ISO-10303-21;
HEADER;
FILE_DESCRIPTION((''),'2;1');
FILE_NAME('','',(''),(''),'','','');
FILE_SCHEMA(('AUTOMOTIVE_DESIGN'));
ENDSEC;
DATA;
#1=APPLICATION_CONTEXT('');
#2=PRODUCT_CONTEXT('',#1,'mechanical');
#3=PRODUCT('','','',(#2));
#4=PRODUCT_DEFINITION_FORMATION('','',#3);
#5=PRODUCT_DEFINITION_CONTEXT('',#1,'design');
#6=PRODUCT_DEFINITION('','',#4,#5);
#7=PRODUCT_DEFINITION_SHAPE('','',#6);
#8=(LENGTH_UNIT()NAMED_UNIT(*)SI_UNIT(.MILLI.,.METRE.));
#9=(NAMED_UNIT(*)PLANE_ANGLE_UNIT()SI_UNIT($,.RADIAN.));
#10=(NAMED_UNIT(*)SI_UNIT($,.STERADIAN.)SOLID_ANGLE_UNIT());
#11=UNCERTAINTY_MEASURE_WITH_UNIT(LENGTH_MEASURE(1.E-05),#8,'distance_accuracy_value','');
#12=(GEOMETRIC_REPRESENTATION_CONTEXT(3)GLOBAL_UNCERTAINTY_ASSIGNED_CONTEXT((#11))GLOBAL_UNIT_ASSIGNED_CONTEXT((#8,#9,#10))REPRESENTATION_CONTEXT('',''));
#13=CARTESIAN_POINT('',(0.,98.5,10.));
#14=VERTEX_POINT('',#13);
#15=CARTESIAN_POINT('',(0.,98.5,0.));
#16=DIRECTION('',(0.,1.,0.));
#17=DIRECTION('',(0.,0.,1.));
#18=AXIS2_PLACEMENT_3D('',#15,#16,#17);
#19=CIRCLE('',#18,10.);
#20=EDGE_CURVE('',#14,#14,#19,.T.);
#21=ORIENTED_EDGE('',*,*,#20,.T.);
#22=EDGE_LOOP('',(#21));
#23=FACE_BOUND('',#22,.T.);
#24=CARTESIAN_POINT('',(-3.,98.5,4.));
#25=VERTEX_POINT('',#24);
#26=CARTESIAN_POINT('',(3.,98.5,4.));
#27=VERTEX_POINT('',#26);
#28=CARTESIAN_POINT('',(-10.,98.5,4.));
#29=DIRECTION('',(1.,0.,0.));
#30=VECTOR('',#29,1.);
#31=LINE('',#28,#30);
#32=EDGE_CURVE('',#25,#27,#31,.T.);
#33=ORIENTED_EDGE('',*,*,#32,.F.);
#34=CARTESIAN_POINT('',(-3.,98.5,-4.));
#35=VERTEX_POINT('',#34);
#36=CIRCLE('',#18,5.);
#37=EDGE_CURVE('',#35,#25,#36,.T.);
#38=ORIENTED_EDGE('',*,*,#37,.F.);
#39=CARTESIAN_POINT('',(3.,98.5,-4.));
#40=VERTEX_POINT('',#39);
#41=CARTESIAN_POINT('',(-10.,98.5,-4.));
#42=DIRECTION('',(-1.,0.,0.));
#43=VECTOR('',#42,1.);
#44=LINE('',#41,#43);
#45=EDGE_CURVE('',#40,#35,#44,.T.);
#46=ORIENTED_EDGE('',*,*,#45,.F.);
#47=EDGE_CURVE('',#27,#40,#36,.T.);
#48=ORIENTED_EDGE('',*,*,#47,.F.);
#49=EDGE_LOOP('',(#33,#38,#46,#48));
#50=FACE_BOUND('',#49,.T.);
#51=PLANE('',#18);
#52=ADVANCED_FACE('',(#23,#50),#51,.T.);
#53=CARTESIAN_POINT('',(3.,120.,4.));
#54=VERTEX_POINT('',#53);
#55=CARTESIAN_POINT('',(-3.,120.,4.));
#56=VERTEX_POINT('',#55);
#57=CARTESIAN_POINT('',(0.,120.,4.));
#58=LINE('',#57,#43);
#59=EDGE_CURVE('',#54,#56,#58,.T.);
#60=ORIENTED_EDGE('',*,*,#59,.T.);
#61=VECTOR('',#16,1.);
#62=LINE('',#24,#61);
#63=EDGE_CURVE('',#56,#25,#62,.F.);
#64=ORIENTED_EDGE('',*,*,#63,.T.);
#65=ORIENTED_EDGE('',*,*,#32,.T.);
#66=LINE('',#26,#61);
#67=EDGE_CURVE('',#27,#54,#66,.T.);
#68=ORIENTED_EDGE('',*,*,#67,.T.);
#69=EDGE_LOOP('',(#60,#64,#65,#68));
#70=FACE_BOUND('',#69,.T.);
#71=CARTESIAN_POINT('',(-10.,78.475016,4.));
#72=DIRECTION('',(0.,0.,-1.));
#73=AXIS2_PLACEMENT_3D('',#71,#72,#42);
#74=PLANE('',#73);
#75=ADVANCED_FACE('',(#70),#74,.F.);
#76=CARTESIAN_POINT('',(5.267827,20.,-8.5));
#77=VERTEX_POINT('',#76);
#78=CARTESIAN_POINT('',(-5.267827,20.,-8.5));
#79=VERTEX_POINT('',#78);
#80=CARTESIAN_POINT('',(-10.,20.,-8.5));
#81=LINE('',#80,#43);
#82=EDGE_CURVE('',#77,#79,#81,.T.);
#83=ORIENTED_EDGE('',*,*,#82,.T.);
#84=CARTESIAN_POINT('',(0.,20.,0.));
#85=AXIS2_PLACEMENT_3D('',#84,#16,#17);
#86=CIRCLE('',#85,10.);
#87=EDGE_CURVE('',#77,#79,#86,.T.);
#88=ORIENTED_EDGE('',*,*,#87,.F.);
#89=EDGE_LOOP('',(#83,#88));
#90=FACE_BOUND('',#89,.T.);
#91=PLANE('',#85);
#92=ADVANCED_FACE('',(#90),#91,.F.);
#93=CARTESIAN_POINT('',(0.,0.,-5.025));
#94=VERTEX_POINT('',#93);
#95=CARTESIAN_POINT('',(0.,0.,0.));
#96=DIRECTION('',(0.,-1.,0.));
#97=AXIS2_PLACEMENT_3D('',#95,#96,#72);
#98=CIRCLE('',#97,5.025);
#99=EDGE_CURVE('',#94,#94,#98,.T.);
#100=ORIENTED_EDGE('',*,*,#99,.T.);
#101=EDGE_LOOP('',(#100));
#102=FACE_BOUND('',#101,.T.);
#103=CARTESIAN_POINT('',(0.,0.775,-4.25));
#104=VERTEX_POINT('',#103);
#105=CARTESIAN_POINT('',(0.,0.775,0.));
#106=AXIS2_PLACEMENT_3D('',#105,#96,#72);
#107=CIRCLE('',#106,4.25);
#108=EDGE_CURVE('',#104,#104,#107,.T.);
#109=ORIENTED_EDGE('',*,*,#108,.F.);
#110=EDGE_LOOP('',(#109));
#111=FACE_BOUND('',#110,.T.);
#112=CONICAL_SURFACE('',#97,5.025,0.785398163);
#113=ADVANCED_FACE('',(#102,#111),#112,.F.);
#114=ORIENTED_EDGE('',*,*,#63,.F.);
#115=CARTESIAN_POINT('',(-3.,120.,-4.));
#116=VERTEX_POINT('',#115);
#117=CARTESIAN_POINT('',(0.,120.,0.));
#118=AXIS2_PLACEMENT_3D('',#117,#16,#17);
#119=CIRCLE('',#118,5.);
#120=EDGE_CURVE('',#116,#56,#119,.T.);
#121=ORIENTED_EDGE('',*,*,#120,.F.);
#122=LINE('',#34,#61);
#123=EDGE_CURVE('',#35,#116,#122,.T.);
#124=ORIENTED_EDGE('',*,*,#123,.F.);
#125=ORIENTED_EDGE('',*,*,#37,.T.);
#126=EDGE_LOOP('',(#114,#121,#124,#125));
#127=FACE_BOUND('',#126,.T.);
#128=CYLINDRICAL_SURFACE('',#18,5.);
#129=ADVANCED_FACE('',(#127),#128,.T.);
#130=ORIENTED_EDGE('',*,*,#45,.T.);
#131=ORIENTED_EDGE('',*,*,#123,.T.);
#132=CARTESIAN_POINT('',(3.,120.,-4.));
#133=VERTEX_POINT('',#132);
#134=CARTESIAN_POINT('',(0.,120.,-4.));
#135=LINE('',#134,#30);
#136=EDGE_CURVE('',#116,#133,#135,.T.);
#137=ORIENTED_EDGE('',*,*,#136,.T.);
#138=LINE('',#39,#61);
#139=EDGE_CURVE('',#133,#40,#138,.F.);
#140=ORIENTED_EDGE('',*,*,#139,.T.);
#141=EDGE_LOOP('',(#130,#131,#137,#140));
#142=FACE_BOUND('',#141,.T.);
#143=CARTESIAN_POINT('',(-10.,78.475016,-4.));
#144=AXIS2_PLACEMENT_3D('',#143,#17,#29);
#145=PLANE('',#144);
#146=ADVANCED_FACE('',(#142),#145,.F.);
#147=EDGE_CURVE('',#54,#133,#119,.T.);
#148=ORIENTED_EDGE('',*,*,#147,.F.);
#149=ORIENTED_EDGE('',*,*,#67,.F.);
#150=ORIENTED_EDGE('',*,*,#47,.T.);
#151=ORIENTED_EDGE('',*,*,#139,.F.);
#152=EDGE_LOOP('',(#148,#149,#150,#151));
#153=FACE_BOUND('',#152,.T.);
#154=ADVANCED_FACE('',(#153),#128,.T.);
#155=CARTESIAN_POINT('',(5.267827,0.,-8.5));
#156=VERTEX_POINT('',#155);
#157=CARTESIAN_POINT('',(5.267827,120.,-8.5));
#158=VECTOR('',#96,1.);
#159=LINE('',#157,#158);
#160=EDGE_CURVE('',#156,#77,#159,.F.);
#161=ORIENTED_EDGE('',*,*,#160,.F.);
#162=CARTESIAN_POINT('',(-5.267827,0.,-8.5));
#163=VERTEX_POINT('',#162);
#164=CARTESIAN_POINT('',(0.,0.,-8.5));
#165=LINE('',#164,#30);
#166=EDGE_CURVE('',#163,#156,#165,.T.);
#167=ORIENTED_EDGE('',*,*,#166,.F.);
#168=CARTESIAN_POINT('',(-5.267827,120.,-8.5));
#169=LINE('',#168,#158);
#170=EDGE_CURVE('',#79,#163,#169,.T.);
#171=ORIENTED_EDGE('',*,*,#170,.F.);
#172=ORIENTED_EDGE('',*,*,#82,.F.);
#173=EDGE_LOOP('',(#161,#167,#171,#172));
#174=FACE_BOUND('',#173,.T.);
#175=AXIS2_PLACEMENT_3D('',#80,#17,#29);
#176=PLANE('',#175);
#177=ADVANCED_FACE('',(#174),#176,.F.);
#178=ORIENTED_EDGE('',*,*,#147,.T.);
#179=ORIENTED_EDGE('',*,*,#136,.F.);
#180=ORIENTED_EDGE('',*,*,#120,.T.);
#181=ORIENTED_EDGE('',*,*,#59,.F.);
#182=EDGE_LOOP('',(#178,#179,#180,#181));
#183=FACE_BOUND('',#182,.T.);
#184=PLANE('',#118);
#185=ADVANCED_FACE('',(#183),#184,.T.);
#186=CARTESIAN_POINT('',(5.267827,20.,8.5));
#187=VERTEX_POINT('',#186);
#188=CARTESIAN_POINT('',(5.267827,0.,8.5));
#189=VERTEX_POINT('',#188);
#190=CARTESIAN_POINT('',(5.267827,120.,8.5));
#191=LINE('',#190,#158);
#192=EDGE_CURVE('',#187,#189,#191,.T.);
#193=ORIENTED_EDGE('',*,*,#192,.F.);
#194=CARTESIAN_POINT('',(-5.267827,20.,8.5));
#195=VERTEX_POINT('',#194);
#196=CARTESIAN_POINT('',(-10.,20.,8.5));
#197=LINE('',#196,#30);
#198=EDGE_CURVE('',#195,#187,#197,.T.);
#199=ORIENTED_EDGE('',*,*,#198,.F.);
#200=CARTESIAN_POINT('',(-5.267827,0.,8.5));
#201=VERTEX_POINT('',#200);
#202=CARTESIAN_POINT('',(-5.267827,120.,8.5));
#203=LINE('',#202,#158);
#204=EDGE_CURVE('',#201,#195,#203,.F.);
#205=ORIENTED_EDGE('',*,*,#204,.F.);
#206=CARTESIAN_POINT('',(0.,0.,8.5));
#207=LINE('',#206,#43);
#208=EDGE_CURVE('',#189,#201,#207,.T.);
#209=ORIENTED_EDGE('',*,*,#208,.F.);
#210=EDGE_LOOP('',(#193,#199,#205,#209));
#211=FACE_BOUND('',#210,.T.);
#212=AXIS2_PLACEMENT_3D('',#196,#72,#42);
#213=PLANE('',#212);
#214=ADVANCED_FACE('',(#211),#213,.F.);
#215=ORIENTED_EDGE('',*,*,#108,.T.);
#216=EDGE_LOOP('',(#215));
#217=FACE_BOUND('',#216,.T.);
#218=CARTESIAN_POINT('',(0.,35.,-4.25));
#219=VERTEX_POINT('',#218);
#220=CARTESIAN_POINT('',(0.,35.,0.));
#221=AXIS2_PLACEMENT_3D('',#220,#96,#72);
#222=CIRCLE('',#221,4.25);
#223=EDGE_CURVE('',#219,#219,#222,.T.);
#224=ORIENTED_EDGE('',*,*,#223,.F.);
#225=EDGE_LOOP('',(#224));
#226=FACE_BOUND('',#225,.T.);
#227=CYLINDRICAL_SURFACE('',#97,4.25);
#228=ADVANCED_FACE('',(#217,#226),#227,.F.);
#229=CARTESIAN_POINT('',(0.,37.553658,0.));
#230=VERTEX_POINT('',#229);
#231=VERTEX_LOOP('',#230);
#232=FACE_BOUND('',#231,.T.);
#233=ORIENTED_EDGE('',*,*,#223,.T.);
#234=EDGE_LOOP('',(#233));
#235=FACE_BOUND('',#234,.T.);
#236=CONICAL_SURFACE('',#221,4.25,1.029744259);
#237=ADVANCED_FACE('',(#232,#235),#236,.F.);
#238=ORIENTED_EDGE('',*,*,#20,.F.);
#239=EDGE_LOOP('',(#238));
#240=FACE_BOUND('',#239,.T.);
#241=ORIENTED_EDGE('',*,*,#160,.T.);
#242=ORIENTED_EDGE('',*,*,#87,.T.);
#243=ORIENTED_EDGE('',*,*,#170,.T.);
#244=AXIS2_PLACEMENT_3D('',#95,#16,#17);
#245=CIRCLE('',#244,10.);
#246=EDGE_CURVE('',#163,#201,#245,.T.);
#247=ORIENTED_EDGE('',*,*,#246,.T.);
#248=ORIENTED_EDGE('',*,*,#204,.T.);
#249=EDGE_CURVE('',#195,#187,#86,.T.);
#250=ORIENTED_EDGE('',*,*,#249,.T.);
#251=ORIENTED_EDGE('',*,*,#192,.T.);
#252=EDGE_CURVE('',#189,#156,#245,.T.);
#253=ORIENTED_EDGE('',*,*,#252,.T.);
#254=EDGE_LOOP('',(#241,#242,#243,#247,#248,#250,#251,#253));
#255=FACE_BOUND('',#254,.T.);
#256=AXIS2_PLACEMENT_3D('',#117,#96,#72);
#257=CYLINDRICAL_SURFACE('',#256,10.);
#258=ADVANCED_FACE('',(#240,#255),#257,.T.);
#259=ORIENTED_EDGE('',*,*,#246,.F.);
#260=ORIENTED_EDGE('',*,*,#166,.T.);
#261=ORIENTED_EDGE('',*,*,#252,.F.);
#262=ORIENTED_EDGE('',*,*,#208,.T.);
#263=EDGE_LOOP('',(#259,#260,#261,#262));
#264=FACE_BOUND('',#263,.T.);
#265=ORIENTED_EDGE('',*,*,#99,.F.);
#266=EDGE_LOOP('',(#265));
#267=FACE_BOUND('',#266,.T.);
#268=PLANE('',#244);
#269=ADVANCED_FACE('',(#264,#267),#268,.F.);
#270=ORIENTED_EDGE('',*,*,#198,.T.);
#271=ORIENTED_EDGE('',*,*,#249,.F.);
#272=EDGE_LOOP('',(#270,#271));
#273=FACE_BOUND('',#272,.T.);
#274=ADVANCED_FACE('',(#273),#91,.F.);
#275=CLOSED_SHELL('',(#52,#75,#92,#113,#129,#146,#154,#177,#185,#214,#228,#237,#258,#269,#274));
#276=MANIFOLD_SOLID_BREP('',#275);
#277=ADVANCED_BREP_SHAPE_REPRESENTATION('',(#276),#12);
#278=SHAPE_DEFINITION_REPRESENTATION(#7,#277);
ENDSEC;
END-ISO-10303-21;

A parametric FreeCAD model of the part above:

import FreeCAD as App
import Part
import Sketcher
from FreeCAD import Vector


def add_polygon(sketch, points):
    """Adds a closed chain of lines whose ends are joined by coincident constraints."""
    first, n = sketch.GeometryCount, len(points)
    for a, b in zip(points, points[1:] + points[:1]):
        sketch.addGeometry(Part.LineSegment(App.Vector(*a, 0), App.Vector(*b, 0)), False)
    for i in range(n):
        sketch.addConstraint(Sketcher.Constraint("Coincident", first + i, 2, first + (i + 1) % n, 1))

doc = App.newDocument("Part")
params = doc.addObject("Spreadsheet::Sheet", "Params")
for row, (alias, value) in enumerate([
    ("sketch1_diameter", "20 mm"),
    ("pad1_length", "120 mm"),
    ("sketch2_diameter", "20 mm"),
    ("sketch2_diameter2", "10 mm"),
    ("pocket1_length", "21.5 mm"),
    ("sketch3_diameter", "8.5 mm"),
    ("hole_diameter", "8.5 mm"),
    ("hole_depth", "35 mm"),
    ("hole_csink_diameter", "10.05 mm"),
    ("sketch4_width", "20 mm"),
    ("sketch4_height", "1.5 mm"),
    ("pocket2_length", "20 mm"),
    ("sketch5_width", "20 mm"),
    ("sketch5_height", "1 mm"),
    ("pocket3_length", "21.5 mm"),
], start=1):
    params.set(f"A{row}", alias)
    params.set(f"B{row}", "=" + value)
    params.setAlias(f"B{row}", alias)

body = doc.addObject("PartDesign::Body", "Body")

sketch1 = doc.addObject("Sketcher::SketchObject", "Sketch")
body.addObject(sketch1)
sketch1.AttachmentSupport = (doc.XZ_Plane, [""])
sketch1.MapMode = "FlatFace"
sketch1.addGeometry(Part.Circle(Vector(0, 0, 0), Vector(0, 0, 1), 10), False)
sketch1.addConstraint([
    Sketcher.Constraint("Coincident", 0, 3, -1, 1),
    Sketcher.Constraint("Diameter", 0, 20.0),
])
sketch1.setExpression("Constraints[1]", "Params.sketch1_diameter")
pad1 = doc.addObject("PartDesign::Pad", "Pad")
body.addObject(pad1)
pad1.Profile = sketch1
pad1.setExpression("Length", "Params.pad1_length")
pad1.Reversed = True

sketch2 = doc.addObject("Sketcher::SketchObject", "Sketch001")
body.addObject(sketch2)
sketch2.AttachmentSupport = (doc.XZ_Plane, [""])
sketch2.MapMode = "FlatFace"
sketch2.AttachmentOffset = App.Placement(Vector(0, 0, -120), App.Rotation())
sketch2.addGeometry([
    Part.Circle(Vector(0, 0, 0), Vector(0, 0, 1), 10),
    Part.Circle(Vector(0, 0, 0), Vector(0, 0, 1), 5),
], False)
sketch2.addConstraint([
    Sketcher.Constraint("Coincident", 0, 3, -1, 1),
    Sketcher.Constraint("Coincident", 1, 3, -1, 1),
    Sketcher.Constraint("Diameter", 0, 20.0),
    Sketcher.Constraint("Diameter", 1, 10.0),
])
sketch2.setExpression("Constraints[2]", "Params.sketch2_diameter")
sketch2.setExpression("Constraints[3]", "Params.sketch2_diameter2")
pocket1 = doc.addObject("PartDesign::Pocket", "Pocket")
body.addObject(pocket1)
pocket1.Profile = sketch2
pocket1.setExpression("Length", "Params.pocket1_length")
pocket1.Reversed = True

sketch3 = doc.addObject("Sketcher::SketchObject", "Sketch002")
body.addObject(sketch3)
sketch3.AttachmentSupport = (doc.XZ_Plane, [""])
sketch3.MapMode = "FlatFace"
sketch3.addGeometry(Part.Circle(Vector(0, 0, 0), Vector(0, 0, 1), 4.2), False)
sketch3.addConstraint([
    Sketcher.Constraint("Coincident", 0, 3, -1, 1),
    Sketcher.Constraint("Diameter", 0, 8.5),
])
sketch3.setExpression("Constraints[1]", "Params.sketch3_diameter")
doc.recompute()
hole = doc.addObject("PartDesign::Hole", "Hole")
body.addObject(hole)
hole.Profile = sketch3
hole.ThreadType = "None"
hole.setExpression("Diameter", "Params.hole_diameter")
hole.DepthType = "Dimension"
hole.setExpression("Depth", "Params.hole_depth")
hole.DrillPoint = "Angled"
hole.DrillPointAngle = 118
hole.HoleCutType = "Countersink"
hole.setExpression("HoleCutDiameter", "Params.hole_csink_diameter")
hole.HoleCutCountersinkAngle = 90

sketch4 = doc.addObject("Sketcher::SketchObject", "Sketch003")
body.addObject(sketch4)
sketch4.AttachmentSupport = (doc.XZ_Plane, [""])
sketch4.MapMode = "FlatFace"
add_polygon(sketch4, [(-10, 10), (-10, 8.5), (10, 8.5), (10, 10)])
add_polygon(sketch4, [(-10, -8.5), (-10, -10), (10, -10), (10, -8.5)])
sketch4.addConstraint([
    Sketcher.Constraint("Vertical", 0),
    Sketcher.Constraint("Horizontal", 1),
    Sketcher.Constraint("Vertical", 2),
    Sketcher.Constraint("Horizontal", 3),
    Sketcher.Constraint("Vertical", 4),
    Sketcher.Constraint("Horizontal", 5),
    Sketcher.Constraint("Vertical", 6),
    Sketcher.Constraint("Horizontal", 7),
    Sketcher.Constraint("Symmetric", 2, 2, 4, 2, -1, 1),
    Sketcher.Constraint("Symmetric", 0, 2, 6, 2, -1, 1),
    Sketcher.Constraint("Vertical", 3, 2, 4, 2),
    Sketcher.Constraint("DistanceX", 1, 1, 1, 2, 20.0),
    Sketcher.Constraint("DistanceY", 0, 2, 0, 1, 1.5),
    Sketcher.Constraint("DistanceY", -1, 1, 2, 2, 10.0),
])
sketch4.setExpression("Constraints[19]", "Params.sketch4_width")
sketch4.setExpression("Constraints[20]", "Params.sketch4_height")
pocket2 = doc.addObject("PartDesign::Pocket", "Pocket001")
body.addObject(pocket2)
pocket2.Profile = sketch4
pocket2.setExpression("Length", "Params.pocket2_length")

sketch5 = doc.addObject("Sketcher::SketchObject", "Sketch004")
body.addObject(sketch5)
sketch5.AttachmentSupport = (doc.XZ_Plane, [""])
sketch5.MapMode = "FlatFace"
sketch5.AttachmentOffset = App.Placement(Vector(0, 0, -120), App.Rotation())
add_polygon(sketch5, [(-10, -5), (-10, -4), (10, -4), (10, -5)])
add_polygon(sketch5, [(-10, 4), (-10, 5), (10, 5), (10, 4)])
sketch5.addConstraint([
    Sketcher.Constraint("Vertical", 0),
    Sketcher.Constraint("Horizontal", 1),
    Sketcher.Constraint("Vertical", 2),
    Sketcher.Constraint("Horizontal", 3),
    Sketcher.Constraint("Vertical", 4),
    Sketcher.Constraint("Horizontal", 5),
    Sketcher.Constraint("Vertical", 6),
    Sketcher.Constraint("Horizontal", 7),
    Sketcher.Constraint("Symmetric", 2, 2, 4, 2, -1, 1),
    Sketcher.Constraint("Symmetric", 0, 2, 6, 2, -1, 1),
    Sketcher.Constraint("Vertical", 3, 2, 4, 2),
    Sketcher.Constraint("DistanceX", 1, 1, 1, 2, 20.0),
    Sketcher.Constraint("DistanceY", 0, 1, 0, 2, 1.0),
    Sketcher.Constraint("DistanceY", 0, 2, -1, 1, 4.0),
])
sketch5.setExpression("Constraints[19]", "Params.sketch5_width")
sketch5.setExpression("Constraints[20]", "Params.sketch5_height")
pocket3 = doc.addObject("PartDesign::Pocket", "Pocket002")
body.addObject(pocket3)
pocket3.Profile = sketch5
pocket3.setExpression("Length", "Params.pocket3_length")
pocket3.Reversed = True

doc.recompute()
